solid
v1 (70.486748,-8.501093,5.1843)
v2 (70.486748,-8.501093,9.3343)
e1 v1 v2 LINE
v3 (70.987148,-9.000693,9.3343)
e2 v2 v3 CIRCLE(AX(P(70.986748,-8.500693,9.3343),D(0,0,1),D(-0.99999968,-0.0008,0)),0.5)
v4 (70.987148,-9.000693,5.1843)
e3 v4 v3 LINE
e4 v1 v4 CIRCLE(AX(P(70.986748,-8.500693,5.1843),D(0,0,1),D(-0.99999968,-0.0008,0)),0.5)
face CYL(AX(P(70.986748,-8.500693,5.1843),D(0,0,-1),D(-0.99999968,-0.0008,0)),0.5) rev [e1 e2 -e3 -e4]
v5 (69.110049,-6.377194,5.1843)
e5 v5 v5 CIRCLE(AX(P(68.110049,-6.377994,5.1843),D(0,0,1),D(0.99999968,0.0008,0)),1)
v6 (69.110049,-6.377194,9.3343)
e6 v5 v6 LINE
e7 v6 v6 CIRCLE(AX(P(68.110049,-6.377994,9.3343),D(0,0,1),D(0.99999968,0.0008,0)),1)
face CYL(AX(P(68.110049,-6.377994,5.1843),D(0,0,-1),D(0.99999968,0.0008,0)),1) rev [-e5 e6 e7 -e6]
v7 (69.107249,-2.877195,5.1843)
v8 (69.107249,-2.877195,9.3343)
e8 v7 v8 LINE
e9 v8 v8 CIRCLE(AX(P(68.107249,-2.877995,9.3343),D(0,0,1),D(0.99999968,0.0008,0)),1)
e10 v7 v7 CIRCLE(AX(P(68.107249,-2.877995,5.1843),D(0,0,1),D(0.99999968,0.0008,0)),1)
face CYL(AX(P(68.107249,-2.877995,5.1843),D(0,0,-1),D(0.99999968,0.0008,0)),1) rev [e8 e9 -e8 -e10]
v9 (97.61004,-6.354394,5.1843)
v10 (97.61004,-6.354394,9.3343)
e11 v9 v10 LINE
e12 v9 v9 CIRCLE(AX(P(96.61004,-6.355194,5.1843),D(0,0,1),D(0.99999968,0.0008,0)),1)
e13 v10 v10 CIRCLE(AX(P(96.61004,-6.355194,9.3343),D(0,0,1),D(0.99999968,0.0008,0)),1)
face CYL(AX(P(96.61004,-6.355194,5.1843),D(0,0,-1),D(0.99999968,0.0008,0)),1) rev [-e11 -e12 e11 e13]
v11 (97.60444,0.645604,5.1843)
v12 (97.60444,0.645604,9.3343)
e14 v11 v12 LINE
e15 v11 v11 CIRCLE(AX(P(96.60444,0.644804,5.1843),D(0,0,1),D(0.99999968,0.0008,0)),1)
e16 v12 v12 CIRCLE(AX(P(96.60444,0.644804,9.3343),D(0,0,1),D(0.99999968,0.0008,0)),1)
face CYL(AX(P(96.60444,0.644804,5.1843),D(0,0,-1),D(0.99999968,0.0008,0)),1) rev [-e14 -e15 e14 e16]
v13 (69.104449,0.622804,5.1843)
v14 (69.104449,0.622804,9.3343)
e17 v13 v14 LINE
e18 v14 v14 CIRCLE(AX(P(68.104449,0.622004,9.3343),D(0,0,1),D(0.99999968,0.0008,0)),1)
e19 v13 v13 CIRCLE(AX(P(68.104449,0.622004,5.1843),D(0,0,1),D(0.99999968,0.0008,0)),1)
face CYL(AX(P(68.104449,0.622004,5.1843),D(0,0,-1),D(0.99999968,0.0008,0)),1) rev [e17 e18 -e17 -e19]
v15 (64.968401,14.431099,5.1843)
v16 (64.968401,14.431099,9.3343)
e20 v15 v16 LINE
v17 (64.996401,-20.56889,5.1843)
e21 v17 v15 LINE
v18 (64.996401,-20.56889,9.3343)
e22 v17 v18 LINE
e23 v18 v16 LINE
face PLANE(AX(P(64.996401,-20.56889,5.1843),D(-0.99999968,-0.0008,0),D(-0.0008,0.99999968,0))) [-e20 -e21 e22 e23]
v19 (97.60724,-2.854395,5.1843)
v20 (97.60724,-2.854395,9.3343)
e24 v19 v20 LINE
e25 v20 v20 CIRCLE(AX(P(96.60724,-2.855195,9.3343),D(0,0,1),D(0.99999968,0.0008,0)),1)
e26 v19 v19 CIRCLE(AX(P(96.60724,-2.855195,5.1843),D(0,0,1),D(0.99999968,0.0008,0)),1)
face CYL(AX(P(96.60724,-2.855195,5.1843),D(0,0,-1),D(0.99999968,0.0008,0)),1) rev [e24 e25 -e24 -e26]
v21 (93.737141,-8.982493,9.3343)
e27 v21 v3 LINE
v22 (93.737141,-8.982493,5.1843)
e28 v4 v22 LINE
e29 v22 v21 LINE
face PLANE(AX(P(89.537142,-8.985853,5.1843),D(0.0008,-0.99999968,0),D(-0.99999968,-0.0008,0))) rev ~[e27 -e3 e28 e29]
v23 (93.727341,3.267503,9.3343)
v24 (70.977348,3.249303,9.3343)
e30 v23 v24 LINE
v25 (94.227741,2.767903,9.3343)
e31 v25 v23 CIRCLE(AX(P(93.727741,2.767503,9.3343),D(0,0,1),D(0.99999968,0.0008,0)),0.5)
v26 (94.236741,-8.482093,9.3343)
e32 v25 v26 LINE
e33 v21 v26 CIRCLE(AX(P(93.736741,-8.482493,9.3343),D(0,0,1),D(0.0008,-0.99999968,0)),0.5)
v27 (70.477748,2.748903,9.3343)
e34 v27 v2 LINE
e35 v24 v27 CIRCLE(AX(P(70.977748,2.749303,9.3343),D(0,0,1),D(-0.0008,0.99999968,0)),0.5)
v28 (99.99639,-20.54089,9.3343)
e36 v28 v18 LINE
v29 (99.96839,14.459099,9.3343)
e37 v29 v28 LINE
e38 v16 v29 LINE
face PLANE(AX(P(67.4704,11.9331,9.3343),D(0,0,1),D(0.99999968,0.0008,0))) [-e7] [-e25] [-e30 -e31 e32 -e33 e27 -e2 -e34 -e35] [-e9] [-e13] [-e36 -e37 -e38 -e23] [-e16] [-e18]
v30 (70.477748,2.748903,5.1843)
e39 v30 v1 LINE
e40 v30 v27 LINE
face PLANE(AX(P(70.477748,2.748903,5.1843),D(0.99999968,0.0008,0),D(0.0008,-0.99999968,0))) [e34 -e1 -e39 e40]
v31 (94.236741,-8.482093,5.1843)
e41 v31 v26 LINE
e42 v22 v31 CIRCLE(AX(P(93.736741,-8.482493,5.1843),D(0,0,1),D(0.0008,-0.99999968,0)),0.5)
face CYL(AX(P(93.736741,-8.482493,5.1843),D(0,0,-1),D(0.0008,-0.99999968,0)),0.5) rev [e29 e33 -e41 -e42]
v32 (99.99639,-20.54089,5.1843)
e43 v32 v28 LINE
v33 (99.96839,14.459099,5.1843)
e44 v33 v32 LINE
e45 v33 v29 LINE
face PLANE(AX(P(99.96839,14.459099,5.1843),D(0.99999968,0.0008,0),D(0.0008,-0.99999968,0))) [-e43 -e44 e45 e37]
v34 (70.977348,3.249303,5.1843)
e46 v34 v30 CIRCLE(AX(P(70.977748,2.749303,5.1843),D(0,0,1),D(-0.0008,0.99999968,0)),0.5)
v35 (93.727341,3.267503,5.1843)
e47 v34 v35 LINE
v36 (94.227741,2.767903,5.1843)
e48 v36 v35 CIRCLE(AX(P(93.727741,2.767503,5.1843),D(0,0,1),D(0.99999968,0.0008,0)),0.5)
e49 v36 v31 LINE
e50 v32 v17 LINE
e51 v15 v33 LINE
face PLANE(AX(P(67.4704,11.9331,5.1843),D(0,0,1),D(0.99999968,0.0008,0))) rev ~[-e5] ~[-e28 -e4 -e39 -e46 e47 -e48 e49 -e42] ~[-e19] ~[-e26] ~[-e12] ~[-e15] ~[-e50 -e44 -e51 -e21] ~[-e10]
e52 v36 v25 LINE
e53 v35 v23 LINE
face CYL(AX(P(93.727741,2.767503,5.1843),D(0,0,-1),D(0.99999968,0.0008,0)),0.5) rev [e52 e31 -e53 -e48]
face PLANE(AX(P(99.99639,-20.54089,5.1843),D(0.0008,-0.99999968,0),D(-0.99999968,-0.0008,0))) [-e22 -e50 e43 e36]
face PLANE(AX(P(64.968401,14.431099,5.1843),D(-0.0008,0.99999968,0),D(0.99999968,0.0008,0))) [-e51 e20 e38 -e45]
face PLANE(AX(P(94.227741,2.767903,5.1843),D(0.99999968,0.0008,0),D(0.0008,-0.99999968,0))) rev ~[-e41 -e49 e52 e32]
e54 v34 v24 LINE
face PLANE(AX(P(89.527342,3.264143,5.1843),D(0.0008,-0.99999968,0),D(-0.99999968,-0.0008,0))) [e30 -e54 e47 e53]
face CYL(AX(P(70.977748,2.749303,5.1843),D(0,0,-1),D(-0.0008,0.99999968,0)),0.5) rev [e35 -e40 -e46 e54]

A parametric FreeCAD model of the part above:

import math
import FreeCAD as App
import Part
import Sketcher
from FreeCAD import Vector


def add_polygon(sketch, points):
    """Adds a closed chain of lines whose ends are joined by coincident constraints."""
    first, n = sketch.GeometryCount, len(points)
    for a, b in zip(points, points[1:] + points[:1]):
        sketch.addGeometry(Part.LineSegment(App.Vector(*a, 0), App.Vector(*b, 0)), False)
    for i in range(n):
        sketch.addConstraint(Sketcher.Constraint("Coincident", first + i, 2, first + (i + 1) % n, 1))

doc = App.newDocument("Part")
body = doc.addObject("PartDesign::Body", "Body")

# Sketch on XY plane
sketch1 = body.newObject("Sketcher::SketchObject", "Sketch")
sketch1.AttachmentSupport = (doc.getObject("XY_Plane"), [""])
sketch1.MapMode = "FlatFace"
sketch1.AttachmentOffset = App.Placement(Vector(0, 0, 5.1843), App.Rotation())
add_polygon(sketch1, [(65, -20.6), (100, -20.5), (100, 14.5), (65, 14.4)])  # lines 0-3
sketch1.addGeometry(Part.ArcOfCircle(Part.Circle(Vector(71, 2.7, 0), Vector(0, 0, 1), 0.5), math.radians(90), math.radians(180)), False)  # 4
sketch1.addGeometry(Part.LineSegment(Vector(71, 3.2, 0), Vector(93.7, 3.3, 0)), False)  # 5
sketch1.addGeometry(Part.ArcOfCircle(Part.Circle(Vector(93.7, 2.8, 0), Vector(0, 0, 1), 0.5), math.radians(0), math.radians(90)), False)  # 6
sketch1.addGeometry(Part.LineSegment(Vector(94.2, 2.8, 0), Vector(94.2, -8.5, 0)), False)  # 7
sketch1.addGeometry(Part.ArcOfCircle(Part.Circle(Vector(93.7, -8.5, 0), Vector(0, 0, 1), 0.5), math.radians(-90), math.radians(0)), False)  # 8
sketch1.addGeometry(Part.LineSegment(Vector(93.7, -9, 0), Vector(71, -9, 0)), False)  # 9
sketch1.addGeometry(Part.ArcOfCircle(Part.Circle(Vector(71, -8.5, 0), Vector(0, 0, 1), 0.5), math.radians(-180), math.radians(-90)), False)  # 10
sketch1.addGeometry(Part.LineSegment(Vector(70.5, -8.5, 0), Vector(70.5, 2.7, 0)), False)  # 11
sketch1.addGeometry(Part.Circle(Vector(68.1, -6.4, 0), Vector(0, 0, 1), 1), False)  # 12
sketch1.addGeometry(Part.Circle(Vector(68.1, -2.9, 0), Vector(0, 0, 1), 1), False)  # 13
sketch1.addGeometry(Part.Circle(Vector(68.1, 0.6, 0), Vector(0, 0, 1), 1), False)  # 14
sketch1.addGeometry(Part.Circle(Vector(96.6, -2.9, 0), Vector(0, 0, 1), 1), False)  # 15
sketch1.addGeometry(Part.Circle(Vector(96.6, 0.6, 0), Vector(0, 0, 1), 1), False)  # 16
sketch1.addGeometry(Part.Circle(Vector(96.6, -6.4, 0), Vector(0, 0, 1), 1), False)  # 17
sketch1.addConstraint([
    Sketcher.Constraint("Tangent", 4, 1, 5, 1),
    Sketcher.Constraint("Tangent", 5, 2, 6, 2),
    Sketcher.Constraint("Tangent", 6, 1, 7, 1),
    Sketcher.Constraint("Tangent", 7, 2, 8, 2),
    Sketcher.Constraint("Tangent", 8, 1, 9, 1),
    Sketcher.Constraint("Tangent", 9, 2, 10, 2),
    Sketcher.Constraint("Tangent", 10, 1, 11, 1),
    Sketcher.Constraint("Tangent", 11, 2, 4, 2),
    Sketcher.Constraint("Equal", 4, 6),
    Sketcher.Constraint("Equal", 6, 8),
    Sketcher.Constraint("Equal", 8, 10),
    Sketcher.Constraint("Equal", 12, 13),
    Sketcher.Constraint("Equal", 13, 14),
    Sketcher.Constraint("Equal", 14, 15),
    Sketcher.Constraint("Equal", 15, 16),
    Sketcher.Constraint("Equal", 16, 17),
    Sketcher.Constraint("Perpendicular", 0, 1),
    Sketcher.Constraint("Perpendicular", 1, 2),
    Sketcher.Constraint("Perpendicular", 2, 3),
    Sketcher.Constraint("Perpendicular", 3, 5),
    Sketcher.Constraint("Perpendicular", 5, 7),
    Sketcher.Constraint("Perpendicular", 7, 9),
    Sketcher.Constraint("Perpendicular", 9, 11),
    Sketcher.Constraint("Equal", 0, 1),
    Sketcher.Constraint("Diameter", 12, 2.0),
    Sketcher.Constraint("Radius", 4, 0.5),
    Sketcher.Constraint("Distance", 0, 35.0),
    Sketcher.Constraint("DistanceY", 12, 3, 14, 3, 7.0),
    Sketcher.Constraint("DistanceY", 17, 3, 16, 3, 7.0),
    Sketcher.Constraint("DistanceY", 12, 3, 13, 3, 3.5),
    Sketcher.Constraint("DistanceX", 13, 3, 15, 3, 28.5),
    Sketcher.Constraint("DistanceY", 15, 3, 16, 3, 3.5),
    Sketcher.Constraint("Distance", 5, 22.75),
    Sketcher.Constraint("Distance", 7, 11.25),
    Sketcher.Constraint("DistanceX", -1, 1, 12, 3, 68.11),
    Sketcher.Constraint("DistanceX", -1, 1, 17, 3, 96.61),
    Sketcher.Constraint("DistanceX", 13, 3, 4, 1, 2.87),
    Sketcher.Constraint("DistanceX", 8, 1, 15, 3, 2.87),
    Sketcher.Constraint("DistanceY", 12, 3, -1, 1, 6.378),
    Sketcher.Constraint("DistanceY", 0, 2, -1, 1, 20.541),
    Sketcher.Constraint("DistanceY", -1, 1, 6, 1, 2.768),
    Sketcher.Constraint("DistanceX", 16, 3, 0, 2, 3.392),
    Sketcher.Constraint("DistanceX", 2, 2, 14, 3, 3.136),
    Sketcher.Constraint("DistanceX", 14, 3, 4, 1, 2.873),
    Sketcher.Constraint("DistanceY", 16, 3, 6, 1, 2.123),
    Sketcher.Constraint("DistanceX", 8, 1, 17, 3, 2.873),
])
pad1 = body.newObject("PartDesign::Pad", "Pad")
pad1.Profile = sketch1
pad1.Length = 4.15

doc.recompute()
